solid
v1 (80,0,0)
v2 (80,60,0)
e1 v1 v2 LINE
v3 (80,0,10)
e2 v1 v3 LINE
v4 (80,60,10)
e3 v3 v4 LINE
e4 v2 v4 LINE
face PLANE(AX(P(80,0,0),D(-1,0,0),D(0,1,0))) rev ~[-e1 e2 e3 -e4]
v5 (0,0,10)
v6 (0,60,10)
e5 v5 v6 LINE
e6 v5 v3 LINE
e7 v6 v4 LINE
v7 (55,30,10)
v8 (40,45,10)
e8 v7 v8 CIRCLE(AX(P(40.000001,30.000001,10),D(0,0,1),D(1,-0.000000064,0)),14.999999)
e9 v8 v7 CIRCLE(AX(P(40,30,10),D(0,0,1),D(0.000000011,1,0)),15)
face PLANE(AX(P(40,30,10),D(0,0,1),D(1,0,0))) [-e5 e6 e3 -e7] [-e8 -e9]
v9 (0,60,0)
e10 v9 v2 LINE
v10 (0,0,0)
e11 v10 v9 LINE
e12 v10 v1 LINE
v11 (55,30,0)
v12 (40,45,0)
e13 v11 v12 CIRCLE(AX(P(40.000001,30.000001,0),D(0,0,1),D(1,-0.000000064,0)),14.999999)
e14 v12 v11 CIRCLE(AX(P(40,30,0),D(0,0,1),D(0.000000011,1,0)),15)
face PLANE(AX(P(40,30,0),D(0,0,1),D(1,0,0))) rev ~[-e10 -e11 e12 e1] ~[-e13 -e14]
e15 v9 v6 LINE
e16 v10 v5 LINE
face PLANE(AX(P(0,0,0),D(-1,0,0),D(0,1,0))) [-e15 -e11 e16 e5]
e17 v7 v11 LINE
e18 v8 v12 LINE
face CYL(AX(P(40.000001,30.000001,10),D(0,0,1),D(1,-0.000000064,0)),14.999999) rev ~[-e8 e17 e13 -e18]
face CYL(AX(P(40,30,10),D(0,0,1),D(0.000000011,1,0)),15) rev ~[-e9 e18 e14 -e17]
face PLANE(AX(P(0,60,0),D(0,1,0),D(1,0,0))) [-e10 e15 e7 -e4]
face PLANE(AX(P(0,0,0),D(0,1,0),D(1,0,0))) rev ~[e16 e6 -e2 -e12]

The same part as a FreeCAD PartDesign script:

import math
import FreeCAD as App
import Part
import Sketcher

V = App.Vector
Q = App.Units.Quantity

doc = App.newDocument("Part")
body = doc.addObject("PartDesign::Body", "Body")

sketch1 = doc.addObject("Sketcher::SketchObject", "Sketch")
body.addObject(sketch1)
sketch1.AttachmentSupport = (doc.XY_Plane, [""])
sketch1.MapMode = "FlatFace"
sketch1.addGeometry(Part.LineSegment(V(0, 60, 0), V(0, 0, 0)), False)
sketch1.addGeometry(Part.LineSegment(V(0, 0, 0), V(80, 0, 0)), False)
sketch1.addGeometry(Part.LineSegment(V(80, 0, 0), V(80, 60, 0)), False)
sketch1.addGeometry(Part.LineSegment(V(80, 60, 0), V(0, 60, 0)), False)
sketch1.addConstraint(Sketcher.Constraint("Coincident", 0, 2, 1, 1))
sketch1.addConstraint(Sketcher.Constraint("Coincident", 1, 2, 2, 1))
sketch1.addConstraint(Sketcher.Constraint("Coincident", 2, 2, 3, 1))
sketch1.addConstraint(Sketcher.Constraint("Coincident", 3, 2, 0, 1))
sketch1.addConstraint(Sketcher.Constraint("Vertical", 0))
sketch1.addConstraint(Sketcher.Constraint("Horizontal", 1))
sketch1.addConstraint(Sketcher.Constraint("Vertical", 2))
sketch1.addConstraint(Sketcher.Constraint("Horizontal", 3))
sketch1.addConstraint(Sketcher.Constraint("Coincident", 0, 2, -1, 1))
sketch1.addConstraint(Sketcher.Constraint("DistanceX", 1, 1, 1, 2, Q("80 mm")))
sketch1.addConstraint(Sketcher.Constraint("DistanceY", 0, 2, 0, 1, Q("60 mm")))
pad1 = doc.addObject("PartDesign::Pad", "Pad")
body.addObject(pad1)
pad1.Profile = sketch1
pad1.Length = 10

sketch2 = doc.addObject("Sketcher::SketchObject", "Sketch001")
body.addObject(sketch2)
sketch2.AttachmentSupport = (doc.XY_Plane, [""])
sketch2.MapMode = "FlatFace"
sketch2.AttachmentOffset = App.Placement(V(0, 0, 10), App.Rotation())
sketch2.addGeometry(Part.ArcOfCircle(Part.Circle(V(40, 30, 0), V(0, 0, 1), 15), math.radians(90), math.radians(360)), False)
sketch2.addGeometry(Part.ArcOfCircle(Part.Circle(V(40, 30, 0), V(0, 0, 1), 15), math.radians(0), math.radians(90)), False)
sketch2.addConstraint(Sketcher.Constraint("Tangent", 0, 1, 1, 2))
sketch2.addConstraint(Sketcher.Constraint("Coincident", 1, 1, 0, 2))
sketch2.addConstraint(Sketcher.Constraint("Horizontal", 0, 3, 1, 1))
sketch2.addConstraint(Sketcher.Constraint("Vertical", 1, 3, 0, 1))
sketch2.addConstraint(Sketcher.Constraint("Radius", 0, Q("15 mm")))
sketch2.addConstraint(Sketcher.Constraint("DistanceX", -1, 1, 0, 3, Q("40 mm")))
sketch2.addConstraint(Sketcher.Constraint("DistanceY", -1, 1, 0, 3, Q("30 mm")))
pocket1 = doc.addObject("PartDesign::Pocket", "Pocket")
body.addObject(pocket1)
pocket1.Profile = sketch2
pocket1.Type = "ThroughAll"

doc.recompute()
